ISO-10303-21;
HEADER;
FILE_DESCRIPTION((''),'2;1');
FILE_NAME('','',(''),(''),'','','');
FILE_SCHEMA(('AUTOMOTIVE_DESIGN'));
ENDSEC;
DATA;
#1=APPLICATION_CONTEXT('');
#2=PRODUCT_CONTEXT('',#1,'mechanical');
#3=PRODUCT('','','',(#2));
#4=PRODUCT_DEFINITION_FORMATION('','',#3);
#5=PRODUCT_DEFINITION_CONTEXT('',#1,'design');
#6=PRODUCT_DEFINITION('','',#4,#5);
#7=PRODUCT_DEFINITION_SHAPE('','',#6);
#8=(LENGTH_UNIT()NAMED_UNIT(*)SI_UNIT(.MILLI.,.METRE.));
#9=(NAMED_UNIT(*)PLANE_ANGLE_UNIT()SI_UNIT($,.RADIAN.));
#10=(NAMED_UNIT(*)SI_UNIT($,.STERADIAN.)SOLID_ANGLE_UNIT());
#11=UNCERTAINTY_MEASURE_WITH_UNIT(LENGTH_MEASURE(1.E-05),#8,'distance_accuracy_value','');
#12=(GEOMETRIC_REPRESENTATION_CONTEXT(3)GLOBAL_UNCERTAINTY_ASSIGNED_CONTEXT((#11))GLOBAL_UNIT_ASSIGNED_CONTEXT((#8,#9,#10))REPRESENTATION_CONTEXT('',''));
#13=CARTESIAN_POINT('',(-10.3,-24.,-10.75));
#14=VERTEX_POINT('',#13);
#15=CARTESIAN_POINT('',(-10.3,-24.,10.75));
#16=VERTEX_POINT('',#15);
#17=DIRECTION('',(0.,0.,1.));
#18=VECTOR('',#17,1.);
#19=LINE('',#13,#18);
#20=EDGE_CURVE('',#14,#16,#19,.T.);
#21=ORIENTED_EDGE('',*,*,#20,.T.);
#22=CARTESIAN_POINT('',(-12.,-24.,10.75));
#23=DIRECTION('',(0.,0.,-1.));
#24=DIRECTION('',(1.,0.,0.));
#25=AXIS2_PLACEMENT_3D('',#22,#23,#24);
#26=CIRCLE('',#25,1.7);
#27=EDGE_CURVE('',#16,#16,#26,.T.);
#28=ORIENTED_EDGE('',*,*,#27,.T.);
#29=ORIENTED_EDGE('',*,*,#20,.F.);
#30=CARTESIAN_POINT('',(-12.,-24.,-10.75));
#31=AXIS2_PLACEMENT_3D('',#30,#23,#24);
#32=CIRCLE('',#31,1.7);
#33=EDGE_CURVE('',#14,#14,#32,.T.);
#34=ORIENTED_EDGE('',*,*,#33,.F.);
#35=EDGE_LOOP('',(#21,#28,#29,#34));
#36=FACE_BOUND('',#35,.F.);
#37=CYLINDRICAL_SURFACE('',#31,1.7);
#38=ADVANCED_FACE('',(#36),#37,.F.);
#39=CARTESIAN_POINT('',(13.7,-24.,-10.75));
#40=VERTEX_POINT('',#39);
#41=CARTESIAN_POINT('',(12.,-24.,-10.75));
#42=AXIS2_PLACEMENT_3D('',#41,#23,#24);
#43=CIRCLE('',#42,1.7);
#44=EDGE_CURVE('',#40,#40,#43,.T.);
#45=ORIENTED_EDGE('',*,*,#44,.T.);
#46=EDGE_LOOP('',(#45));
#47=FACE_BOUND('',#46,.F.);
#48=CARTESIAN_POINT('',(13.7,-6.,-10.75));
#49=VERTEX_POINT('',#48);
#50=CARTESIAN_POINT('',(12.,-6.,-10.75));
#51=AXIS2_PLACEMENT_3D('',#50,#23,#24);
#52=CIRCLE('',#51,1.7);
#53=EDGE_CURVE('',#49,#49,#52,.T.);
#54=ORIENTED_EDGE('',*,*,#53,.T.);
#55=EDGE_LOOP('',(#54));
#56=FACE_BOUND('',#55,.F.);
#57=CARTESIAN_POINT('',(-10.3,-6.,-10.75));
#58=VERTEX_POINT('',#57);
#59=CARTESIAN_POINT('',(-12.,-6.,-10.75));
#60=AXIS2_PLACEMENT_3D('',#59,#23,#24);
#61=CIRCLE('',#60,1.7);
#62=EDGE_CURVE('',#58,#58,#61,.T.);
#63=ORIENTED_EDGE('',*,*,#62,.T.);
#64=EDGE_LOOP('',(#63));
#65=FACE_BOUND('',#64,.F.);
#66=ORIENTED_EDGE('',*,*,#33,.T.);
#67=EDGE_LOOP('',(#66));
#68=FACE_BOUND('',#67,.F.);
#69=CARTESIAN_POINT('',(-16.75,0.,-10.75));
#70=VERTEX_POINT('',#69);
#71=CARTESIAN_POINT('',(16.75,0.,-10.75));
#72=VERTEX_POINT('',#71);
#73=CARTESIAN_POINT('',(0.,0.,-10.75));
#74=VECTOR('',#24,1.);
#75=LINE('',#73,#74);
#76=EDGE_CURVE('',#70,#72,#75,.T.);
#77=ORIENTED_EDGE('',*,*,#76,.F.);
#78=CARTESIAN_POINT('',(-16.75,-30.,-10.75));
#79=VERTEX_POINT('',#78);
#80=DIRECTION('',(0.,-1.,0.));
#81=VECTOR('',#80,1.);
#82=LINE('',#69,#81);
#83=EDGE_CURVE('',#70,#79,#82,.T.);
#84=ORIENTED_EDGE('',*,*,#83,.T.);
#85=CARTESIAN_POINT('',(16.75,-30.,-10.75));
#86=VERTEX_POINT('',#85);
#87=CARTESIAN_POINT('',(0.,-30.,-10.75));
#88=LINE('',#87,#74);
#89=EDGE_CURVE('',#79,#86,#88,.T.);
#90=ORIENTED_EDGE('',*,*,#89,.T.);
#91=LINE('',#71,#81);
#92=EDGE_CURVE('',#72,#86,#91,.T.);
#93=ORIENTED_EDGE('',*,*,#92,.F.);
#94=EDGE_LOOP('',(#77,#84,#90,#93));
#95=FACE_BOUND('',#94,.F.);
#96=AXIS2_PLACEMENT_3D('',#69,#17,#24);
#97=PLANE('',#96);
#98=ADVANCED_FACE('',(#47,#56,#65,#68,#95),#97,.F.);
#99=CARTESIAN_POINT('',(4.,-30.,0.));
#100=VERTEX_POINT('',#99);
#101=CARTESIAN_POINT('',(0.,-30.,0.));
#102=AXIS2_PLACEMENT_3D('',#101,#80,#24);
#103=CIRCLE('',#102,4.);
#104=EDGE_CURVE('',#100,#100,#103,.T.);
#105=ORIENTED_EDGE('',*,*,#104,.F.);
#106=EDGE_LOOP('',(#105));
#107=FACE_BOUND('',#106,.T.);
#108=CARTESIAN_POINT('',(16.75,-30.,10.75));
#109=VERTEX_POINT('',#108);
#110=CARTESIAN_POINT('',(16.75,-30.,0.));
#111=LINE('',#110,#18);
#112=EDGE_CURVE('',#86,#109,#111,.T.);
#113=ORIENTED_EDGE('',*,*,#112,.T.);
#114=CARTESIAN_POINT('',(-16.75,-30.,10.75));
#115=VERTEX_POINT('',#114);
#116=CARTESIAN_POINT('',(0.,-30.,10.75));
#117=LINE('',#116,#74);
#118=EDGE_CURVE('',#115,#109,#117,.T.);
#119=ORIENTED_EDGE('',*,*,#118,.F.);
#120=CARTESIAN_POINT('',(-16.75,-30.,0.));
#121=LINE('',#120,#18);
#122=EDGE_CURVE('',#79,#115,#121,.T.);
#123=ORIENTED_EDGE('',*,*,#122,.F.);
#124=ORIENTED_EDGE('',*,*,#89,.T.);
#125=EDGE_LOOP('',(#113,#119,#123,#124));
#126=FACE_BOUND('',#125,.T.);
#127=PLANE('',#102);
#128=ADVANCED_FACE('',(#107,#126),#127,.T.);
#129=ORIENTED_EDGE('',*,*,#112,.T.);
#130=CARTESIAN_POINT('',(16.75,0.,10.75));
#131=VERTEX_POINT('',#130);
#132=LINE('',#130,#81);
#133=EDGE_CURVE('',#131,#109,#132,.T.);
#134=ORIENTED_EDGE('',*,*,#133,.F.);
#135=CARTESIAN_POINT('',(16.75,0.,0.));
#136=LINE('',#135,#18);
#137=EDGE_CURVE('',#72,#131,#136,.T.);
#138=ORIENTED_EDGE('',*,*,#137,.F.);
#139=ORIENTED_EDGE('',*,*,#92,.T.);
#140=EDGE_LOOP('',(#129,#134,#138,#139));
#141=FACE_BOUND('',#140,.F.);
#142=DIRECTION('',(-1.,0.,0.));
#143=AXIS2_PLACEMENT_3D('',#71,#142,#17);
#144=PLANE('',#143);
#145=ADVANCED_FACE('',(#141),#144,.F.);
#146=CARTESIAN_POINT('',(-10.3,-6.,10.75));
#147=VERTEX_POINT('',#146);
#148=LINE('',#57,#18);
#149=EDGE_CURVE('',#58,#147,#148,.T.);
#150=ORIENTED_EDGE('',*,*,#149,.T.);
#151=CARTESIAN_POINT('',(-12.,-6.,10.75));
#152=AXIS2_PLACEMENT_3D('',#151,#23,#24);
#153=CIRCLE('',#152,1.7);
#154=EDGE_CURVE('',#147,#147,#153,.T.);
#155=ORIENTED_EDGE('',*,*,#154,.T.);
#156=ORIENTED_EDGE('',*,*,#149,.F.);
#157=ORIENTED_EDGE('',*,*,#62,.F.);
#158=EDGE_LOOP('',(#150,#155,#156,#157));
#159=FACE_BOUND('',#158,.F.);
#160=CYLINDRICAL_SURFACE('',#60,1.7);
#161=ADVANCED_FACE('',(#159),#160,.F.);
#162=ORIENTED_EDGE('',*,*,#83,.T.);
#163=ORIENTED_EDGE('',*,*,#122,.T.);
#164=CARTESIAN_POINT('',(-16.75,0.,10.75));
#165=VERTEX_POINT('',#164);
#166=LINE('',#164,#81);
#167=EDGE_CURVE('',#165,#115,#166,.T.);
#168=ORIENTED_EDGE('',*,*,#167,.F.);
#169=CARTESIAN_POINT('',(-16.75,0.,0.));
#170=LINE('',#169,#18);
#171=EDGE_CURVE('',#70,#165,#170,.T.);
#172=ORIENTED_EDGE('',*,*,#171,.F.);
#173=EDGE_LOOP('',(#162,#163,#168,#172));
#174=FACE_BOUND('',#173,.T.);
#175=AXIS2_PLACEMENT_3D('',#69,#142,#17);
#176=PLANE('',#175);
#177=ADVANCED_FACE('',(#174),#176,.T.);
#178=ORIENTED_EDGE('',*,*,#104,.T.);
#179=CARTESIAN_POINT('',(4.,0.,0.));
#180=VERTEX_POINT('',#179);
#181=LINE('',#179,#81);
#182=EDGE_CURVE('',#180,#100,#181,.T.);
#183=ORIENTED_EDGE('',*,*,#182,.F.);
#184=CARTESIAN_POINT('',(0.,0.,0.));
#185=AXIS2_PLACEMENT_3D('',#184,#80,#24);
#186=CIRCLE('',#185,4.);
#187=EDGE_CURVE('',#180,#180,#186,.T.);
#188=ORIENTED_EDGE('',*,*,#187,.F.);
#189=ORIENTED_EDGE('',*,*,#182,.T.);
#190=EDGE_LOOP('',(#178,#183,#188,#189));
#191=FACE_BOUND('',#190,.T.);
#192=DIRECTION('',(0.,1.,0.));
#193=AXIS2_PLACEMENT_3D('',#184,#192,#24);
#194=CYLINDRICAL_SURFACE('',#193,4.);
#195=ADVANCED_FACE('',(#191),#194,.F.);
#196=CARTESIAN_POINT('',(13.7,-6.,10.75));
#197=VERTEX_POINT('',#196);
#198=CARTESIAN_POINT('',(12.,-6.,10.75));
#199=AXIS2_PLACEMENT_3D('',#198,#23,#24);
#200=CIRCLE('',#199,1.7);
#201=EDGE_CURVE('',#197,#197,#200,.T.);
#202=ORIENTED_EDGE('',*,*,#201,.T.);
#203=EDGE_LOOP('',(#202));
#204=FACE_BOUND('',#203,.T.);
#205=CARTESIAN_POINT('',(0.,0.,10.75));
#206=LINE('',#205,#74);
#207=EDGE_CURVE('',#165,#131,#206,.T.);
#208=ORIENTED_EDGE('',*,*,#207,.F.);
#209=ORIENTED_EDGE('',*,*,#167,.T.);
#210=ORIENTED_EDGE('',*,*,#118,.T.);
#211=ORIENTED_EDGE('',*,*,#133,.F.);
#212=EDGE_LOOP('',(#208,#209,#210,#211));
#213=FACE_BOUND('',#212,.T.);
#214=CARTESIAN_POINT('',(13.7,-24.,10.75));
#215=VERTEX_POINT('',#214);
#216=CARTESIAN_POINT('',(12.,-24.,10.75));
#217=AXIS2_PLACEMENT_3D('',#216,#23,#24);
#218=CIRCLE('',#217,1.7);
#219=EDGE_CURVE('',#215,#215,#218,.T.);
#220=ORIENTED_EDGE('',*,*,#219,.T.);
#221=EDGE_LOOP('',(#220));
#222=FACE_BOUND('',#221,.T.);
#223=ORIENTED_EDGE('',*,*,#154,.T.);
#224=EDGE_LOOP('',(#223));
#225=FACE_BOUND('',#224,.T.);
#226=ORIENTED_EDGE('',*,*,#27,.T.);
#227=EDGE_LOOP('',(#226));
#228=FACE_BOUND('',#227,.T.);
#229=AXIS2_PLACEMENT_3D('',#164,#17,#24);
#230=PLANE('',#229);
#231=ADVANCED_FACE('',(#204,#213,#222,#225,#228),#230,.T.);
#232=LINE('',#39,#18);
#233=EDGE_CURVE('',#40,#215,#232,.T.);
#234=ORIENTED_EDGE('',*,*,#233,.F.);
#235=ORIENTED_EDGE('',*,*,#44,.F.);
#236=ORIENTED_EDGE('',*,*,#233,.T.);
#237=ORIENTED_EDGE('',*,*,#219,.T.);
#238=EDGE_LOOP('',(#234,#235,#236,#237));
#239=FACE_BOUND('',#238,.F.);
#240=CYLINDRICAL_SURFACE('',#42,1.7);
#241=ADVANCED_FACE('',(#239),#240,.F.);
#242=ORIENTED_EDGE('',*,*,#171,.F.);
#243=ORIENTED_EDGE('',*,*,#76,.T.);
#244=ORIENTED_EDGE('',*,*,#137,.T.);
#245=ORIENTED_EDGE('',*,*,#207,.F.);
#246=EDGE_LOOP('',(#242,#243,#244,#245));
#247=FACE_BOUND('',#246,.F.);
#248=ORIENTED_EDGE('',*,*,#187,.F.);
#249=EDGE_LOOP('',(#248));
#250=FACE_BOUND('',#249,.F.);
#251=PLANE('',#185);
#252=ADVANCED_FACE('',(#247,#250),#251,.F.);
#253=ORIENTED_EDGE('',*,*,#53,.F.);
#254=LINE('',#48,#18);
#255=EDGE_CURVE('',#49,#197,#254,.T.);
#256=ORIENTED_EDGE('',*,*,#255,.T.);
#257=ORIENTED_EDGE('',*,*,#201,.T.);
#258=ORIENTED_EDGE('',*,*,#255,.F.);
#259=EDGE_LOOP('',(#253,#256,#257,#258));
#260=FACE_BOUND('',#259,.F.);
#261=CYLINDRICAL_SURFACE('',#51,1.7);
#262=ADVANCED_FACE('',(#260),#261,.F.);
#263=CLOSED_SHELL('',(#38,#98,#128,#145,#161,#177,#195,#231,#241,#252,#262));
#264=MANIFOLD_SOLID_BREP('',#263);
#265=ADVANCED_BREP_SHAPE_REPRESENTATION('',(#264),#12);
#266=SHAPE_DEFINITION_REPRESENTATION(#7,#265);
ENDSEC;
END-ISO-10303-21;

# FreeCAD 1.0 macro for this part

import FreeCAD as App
import Part
import Sketcher

doc = App.newDocument("Part")
body = doc.addObject("PartDesign::Body", "Body")

sketch1 = body.newObject("Sketcher::SketchObject", "Sketch")
sketch1.AttachmentSupport = (doc.getObject("XZ_Plane"), [""])
sketch1.MapMode = "FlatFace"
sketch1.addGeometry([
    Part.LineSegment(App.Vector(-16.8, 10.8, 0), App.Vector(-16.8, -10.8, 0)),
    Part.LineSegment(App.Vector(-16.8, -10.8, 0), App.Vector(16.8, -10.8, 0)),
    Part.LineSegment(App.Vector(16.8, -10.8, 0), App.Vector(16.8, 10.8, 0)),
    Part.LineSegment(App.Vector(16.8, 10.8, 0), App.Vector(-16.8, 10.8, 0)),
    Part.Circle(App.Vector(0, 0, 0), App.Vector(0, 0, 1), 4),
], False)
sketch1.addConstraint([
    Sketcher.Constraint("Coincident", 0, 2, 1, 1),
    Sketcher.Constraint("Coincident", 1, 2, 2, 1),
    Sketcher.Constraint("Coincident", 2, 2, 3, 1),
    Sketcher.Constraint("Coincident", 3, 2, 0, 1),
    Sketcher.Constraint("Vertical", 0),
    Sketcher.Constraint("Horizontal", 1),
    Sketcher.Constraint("Vertical", 2),
    Sketcher.Constraint("Horizontal", 3),
    Sketcher.Constraint("Coincident", 4, 3, -1, 1),
    Sketcher.Constraint("Symmetric", 0, 2, 2, 2, -1, 1),
    Sketcher.Constraint("Diameter", 4, 8.0),
    Sketcher.Constraint("DistanceX", 1, 1, 1, 2, 33.5),
    Sketcher.Constraint("DistanceY", 0, 2, 0, 1, 21.5),
])
pad1 = body.newObject("PartDesign::Pad", "Pad")
pad1.Profile = sketch1
pad1.Length = 30

sketch2 = body.newObject("Sketcher::SketchObject", "Sketch001")
sketch2.AttachmentSupport = (doc.getObject("XY_Plane"), [""])
sketch2.MapMode = "FlatFace"
sketch2.AttachmentOffset = App.Placement(App.Vector(0, 0, -10.75), App.Rotation())
sketch2.addGeometry([
    Part.Circle(App.Vector(-12, -24, 0), App.Vector(0, 0, 1), 1.7),
    Part.Circle(App.Vector(12, -24, 0), App.Vector(0, 0, 1), 1.7),
    Part.Circle(App.Vector(12, -6, 0), App.Vector(0, 0, 1), 1.7),
    Part.Circle(App.Vector(-12, -6, 0), App.Vector(0, 0, 1), 1.7),
], False)
sketch2.addConstraint([
    Sketcher.Constraint("Equal", 0, 1),
    Sketcher.Constraint("Equal", 1, 2),
    Sketcher.Constraint("Equal", 2, 3),
    Sketcher.Constraint("Symmetric", 0, 3, 1, 3, -2),
    Sketcher.Constraint("Symmetric", 2, 3, 3, 3, -2),
    Sketcher.Constraint("Vertical", 1, 3, 2, 3),
    Sketcher.Constraint("Diameter", 0, 3.4),
    Sketcher.Constraint("DistanceX", 0, 3, -1, 1, 12.0),
    Sketcher.Constraint("DistanceY", 0, 3, -1, 1, 24.0),
    Sketcher.Constraint("DistanceY", 2, 3, -1, 1, 6.0),
])
pocket1 = body.newObject("PartDesign::Pocket", "Pocket")
pocket1.Profile = sketch2
pocket1.Type = "ThroughAll"
pocket1.Reversed = True

doc.recompute()
